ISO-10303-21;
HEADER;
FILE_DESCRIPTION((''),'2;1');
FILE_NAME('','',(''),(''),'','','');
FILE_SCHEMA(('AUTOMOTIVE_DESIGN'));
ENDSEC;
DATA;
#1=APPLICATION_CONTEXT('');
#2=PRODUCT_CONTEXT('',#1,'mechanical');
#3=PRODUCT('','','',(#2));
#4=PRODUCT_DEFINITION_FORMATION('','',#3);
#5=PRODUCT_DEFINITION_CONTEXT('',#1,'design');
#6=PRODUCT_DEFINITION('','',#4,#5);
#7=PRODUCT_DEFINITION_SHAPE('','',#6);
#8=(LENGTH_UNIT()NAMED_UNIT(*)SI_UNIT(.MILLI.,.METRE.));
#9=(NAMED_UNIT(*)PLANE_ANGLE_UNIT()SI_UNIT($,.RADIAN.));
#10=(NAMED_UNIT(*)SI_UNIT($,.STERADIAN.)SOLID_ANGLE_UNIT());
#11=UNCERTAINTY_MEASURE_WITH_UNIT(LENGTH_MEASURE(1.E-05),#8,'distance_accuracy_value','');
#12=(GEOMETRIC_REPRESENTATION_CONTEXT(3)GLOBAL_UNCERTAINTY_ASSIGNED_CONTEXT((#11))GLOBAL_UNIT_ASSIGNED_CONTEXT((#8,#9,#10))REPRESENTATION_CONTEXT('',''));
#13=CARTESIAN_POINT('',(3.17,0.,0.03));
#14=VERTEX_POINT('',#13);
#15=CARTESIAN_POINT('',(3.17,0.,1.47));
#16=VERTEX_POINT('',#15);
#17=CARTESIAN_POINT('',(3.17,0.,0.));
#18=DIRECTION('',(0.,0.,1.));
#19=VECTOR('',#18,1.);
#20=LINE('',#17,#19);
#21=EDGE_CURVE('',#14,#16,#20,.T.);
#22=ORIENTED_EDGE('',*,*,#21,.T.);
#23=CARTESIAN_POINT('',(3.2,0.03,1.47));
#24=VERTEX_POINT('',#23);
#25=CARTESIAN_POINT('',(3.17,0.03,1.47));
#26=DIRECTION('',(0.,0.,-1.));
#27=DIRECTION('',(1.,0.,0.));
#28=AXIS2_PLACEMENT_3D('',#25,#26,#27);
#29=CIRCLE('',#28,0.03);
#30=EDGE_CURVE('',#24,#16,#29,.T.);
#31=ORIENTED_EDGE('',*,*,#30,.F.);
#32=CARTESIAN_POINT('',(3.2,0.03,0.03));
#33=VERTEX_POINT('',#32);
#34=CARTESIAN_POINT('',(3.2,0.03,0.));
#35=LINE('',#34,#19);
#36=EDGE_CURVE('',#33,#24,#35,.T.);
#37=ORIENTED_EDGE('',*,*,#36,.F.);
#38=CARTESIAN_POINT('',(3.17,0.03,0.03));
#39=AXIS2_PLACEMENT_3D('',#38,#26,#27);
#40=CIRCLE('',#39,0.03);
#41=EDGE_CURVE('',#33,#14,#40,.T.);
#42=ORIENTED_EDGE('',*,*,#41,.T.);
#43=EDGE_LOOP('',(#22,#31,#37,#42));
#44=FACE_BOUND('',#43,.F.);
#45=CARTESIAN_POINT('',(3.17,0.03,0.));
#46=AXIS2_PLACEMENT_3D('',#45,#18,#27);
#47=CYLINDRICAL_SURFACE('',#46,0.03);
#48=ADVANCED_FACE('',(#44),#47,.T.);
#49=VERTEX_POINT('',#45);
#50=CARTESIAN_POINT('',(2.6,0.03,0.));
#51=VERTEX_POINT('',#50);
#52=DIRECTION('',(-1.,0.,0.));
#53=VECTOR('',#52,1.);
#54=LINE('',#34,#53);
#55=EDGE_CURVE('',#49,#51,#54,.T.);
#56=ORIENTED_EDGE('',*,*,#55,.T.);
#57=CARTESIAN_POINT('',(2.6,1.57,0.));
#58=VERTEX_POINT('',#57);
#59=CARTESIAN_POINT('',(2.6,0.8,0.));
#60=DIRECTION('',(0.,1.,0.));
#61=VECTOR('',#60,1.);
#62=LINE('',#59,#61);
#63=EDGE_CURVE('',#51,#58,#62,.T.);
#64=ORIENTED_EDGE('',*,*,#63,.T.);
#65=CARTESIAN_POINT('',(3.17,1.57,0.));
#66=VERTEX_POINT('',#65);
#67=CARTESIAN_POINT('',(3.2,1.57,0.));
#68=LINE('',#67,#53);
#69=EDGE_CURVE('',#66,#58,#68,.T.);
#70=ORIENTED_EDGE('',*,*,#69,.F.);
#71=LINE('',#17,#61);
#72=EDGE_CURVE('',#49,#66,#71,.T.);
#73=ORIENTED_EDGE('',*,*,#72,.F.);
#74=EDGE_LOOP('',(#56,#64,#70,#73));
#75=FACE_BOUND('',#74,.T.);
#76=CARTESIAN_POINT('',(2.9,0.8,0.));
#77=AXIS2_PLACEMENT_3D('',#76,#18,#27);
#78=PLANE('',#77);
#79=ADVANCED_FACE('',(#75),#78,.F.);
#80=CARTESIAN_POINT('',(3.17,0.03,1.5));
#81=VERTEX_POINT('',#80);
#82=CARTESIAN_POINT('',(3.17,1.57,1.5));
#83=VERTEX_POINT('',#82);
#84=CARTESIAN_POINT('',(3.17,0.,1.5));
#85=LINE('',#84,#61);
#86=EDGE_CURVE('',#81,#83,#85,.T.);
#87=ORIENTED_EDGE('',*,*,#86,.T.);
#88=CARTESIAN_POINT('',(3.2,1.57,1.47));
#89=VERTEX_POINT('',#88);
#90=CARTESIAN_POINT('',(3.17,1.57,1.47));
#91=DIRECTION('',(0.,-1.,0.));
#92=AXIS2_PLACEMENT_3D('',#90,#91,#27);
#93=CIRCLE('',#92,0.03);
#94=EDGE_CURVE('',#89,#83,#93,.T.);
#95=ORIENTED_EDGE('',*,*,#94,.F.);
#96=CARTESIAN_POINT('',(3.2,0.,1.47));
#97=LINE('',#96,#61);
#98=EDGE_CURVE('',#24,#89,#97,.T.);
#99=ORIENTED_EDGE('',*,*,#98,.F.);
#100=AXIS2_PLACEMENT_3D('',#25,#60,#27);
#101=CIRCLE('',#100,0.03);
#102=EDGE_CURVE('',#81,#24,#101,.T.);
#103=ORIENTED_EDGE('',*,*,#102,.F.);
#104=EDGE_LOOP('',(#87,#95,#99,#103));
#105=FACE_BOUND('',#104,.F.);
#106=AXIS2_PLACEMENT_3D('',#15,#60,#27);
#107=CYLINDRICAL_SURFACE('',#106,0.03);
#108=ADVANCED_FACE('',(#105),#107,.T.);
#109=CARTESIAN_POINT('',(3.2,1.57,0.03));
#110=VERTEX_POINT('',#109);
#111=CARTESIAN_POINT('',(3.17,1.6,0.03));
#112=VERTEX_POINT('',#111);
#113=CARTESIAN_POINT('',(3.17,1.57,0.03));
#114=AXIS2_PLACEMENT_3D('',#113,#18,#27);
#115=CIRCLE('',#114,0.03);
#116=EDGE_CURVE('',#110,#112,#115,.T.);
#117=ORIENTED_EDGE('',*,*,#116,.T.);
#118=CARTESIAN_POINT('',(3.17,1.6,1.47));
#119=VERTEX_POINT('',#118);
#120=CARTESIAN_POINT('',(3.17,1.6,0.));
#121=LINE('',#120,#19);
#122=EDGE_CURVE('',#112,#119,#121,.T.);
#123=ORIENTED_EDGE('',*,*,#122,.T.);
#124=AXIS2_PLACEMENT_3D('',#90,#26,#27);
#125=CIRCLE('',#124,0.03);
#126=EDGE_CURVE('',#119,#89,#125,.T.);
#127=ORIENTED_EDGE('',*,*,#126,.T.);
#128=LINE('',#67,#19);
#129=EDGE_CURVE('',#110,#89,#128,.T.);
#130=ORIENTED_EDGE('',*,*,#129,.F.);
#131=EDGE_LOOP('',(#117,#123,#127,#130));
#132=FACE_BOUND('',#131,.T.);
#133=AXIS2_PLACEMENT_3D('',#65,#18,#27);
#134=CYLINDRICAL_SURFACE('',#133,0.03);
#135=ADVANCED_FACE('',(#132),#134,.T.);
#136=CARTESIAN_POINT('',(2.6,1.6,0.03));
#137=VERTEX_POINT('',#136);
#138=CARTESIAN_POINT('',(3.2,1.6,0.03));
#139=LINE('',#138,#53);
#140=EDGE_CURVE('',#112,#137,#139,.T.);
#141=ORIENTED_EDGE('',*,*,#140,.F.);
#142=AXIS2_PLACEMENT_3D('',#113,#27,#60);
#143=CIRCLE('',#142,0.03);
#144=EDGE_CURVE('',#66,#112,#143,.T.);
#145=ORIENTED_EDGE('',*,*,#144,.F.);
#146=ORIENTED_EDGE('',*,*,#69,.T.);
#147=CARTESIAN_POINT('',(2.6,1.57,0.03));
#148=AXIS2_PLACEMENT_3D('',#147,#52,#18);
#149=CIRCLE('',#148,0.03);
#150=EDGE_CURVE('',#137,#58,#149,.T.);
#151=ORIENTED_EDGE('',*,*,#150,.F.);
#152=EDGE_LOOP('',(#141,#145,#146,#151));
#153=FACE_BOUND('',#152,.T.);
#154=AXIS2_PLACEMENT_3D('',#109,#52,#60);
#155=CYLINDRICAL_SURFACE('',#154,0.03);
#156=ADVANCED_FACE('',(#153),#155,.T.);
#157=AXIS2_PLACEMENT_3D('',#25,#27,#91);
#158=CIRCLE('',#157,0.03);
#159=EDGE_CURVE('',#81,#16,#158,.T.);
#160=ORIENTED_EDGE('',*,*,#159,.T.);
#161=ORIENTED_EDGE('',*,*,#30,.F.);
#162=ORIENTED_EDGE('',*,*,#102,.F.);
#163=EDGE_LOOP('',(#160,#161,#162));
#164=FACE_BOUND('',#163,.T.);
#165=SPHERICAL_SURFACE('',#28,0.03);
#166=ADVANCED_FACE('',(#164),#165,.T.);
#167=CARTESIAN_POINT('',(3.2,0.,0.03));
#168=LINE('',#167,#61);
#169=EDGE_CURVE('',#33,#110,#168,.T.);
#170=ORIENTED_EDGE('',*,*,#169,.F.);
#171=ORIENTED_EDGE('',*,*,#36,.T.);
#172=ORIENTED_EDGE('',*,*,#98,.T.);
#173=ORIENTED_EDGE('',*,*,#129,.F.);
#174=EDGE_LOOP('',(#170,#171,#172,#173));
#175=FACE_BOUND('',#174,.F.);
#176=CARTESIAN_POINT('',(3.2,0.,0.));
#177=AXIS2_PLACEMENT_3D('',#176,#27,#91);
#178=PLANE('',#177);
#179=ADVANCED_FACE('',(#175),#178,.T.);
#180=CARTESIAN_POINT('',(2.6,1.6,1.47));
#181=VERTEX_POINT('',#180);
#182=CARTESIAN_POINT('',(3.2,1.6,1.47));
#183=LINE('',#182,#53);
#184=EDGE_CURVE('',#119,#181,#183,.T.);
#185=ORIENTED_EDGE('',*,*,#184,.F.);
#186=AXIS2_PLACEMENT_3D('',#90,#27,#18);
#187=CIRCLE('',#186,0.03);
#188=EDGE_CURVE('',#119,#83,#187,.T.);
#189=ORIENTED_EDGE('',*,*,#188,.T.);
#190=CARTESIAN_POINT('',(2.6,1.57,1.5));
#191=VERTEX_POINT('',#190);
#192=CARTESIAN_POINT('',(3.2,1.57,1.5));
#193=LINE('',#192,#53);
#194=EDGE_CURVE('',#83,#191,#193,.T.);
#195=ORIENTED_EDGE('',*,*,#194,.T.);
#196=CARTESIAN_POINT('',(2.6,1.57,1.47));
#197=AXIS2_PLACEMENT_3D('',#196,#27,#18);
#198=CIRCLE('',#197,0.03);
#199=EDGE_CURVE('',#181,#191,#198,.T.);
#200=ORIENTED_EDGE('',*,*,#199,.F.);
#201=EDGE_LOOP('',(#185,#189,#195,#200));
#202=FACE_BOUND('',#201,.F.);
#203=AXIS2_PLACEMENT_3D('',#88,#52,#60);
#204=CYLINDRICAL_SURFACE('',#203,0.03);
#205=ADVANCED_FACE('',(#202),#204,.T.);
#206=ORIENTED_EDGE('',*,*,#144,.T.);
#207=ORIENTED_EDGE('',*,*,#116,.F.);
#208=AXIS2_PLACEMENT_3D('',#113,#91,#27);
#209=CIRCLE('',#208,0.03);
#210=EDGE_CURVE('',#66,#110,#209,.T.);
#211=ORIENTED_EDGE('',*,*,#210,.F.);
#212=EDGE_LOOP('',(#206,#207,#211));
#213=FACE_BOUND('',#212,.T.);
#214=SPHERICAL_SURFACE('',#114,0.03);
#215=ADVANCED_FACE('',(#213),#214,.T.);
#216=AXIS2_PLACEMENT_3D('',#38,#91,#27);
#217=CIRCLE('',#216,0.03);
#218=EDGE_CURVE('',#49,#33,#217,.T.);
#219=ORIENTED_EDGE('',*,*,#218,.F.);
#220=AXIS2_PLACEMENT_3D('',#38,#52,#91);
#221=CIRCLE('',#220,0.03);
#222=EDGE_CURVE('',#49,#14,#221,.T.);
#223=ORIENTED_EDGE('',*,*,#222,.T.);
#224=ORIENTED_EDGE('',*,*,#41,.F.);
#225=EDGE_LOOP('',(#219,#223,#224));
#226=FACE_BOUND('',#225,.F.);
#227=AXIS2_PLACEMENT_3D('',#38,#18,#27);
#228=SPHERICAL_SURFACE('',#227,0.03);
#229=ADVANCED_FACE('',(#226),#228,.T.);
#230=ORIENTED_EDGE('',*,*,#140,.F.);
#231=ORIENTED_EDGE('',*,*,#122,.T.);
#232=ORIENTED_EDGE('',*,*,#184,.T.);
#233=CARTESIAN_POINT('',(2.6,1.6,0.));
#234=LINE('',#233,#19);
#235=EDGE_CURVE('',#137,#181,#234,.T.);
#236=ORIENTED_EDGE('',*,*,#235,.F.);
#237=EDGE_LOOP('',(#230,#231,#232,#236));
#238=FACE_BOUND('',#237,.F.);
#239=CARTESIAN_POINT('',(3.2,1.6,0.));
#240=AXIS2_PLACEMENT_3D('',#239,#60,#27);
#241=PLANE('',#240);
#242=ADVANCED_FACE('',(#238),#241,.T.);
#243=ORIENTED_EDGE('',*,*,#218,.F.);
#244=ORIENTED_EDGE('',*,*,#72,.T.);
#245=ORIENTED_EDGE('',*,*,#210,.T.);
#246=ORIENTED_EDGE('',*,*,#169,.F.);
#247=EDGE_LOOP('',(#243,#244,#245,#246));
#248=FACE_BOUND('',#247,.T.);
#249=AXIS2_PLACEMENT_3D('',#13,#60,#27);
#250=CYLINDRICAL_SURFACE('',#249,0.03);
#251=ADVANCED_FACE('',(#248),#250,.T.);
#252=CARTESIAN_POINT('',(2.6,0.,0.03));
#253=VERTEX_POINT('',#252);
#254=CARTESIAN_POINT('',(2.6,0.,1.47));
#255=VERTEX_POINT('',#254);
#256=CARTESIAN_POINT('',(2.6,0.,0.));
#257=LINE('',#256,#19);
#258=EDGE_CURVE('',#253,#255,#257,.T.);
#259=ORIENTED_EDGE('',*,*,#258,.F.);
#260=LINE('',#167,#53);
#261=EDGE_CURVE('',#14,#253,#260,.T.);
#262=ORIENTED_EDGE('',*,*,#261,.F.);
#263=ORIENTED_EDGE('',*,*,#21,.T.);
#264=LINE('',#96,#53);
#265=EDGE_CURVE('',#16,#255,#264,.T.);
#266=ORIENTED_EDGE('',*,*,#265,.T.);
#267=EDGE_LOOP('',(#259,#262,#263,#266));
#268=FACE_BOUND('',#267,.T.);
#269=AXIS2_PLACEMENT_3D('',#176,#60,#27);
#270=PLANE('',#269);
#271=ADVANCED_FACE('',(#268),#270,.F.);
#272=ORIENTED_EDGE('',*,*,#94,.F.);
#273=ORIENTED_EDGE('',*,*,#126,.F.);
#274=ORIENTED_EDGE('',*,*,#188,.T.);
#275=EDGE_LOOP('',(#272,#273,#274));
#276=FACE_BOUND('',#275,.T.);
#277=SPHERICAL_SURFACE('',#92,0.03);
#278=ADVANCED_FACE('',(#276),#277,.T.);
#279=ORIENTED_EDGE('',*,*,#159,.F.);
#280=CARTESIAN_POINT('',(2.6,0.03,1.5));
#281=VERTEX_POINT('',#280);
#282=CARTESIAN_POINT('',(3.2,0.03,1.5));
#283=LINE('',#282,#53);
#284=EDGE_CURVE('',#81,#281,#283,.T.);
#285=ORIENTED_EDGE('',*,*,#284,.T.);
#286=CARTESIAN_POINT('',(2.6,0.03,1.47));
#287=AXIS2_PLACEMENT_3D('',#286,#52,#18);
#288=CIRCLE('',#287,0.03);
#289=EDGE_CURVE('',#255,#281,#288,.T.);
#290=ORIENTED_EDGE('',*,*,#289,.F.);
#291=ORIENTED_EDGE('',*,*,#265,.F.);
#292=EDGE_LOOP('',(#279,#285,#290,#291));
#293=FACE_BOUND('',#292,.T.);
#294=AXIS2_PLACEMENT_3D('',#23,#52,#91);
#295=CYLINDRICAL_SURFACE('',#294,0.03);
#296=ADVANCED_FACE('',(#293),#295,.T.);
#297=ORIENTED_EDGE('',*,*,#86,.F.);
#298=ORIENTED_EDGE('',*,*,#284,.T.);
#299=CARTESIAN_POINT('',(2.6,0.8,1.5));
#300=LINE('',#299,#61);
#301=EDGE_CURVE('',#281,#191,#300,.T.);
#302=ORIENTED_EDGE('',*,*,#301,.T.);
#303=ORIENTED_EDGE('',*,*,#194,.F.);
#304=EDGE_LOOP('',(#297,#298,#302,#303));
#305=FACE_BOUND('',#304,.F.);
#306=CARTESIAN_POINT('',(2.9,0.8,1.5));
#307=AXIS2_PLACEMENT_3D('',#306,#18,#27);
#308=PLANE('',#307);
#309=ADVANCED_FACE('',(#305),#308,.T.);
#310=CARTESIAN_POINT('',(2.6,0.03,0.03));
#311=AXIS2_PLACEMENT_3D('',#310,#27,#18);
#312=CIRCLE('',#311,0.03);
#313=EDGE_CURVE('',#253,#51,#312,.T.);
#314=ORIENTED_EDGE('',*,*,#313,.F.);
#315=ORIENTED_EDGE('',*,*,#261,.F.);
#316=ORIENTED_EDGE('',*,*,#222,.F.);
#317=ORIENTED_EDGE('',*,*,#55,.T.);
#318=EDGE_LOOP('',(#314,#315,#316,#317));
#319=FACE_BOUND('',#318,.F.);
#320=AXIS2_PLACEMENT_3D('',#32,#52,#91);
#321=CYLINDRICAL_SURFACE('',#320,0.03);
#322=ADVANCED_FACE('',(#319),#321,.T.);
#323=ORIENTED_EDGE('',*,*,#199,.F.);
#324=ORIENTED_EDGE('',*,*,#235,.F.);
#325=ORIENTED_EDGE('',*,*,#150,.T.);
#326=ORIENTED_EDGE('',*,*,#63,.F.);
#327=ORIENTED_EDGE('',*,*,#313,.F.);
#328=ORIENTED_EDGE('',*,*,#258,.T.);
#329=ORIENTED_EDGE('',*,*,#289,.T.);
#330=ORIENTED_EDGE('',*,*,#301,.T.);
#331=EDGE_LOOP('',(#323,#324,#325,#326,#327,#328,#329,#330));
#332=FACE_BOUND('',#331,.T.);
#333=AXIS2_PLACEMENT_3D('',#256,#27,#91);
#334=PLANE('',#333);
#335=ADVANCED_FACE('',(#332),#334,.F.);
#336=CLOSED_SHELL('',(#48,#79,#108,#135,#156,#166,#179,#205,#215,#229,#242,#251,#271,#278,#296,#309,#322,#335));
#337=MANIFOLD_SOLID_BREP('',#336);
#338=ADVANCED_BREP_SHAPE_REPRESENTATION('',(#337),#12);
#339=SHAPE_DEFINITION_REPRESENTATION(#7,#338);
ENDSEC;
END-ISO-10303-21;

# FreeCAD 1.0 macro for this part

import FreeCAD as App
import Part
import Sketcher


def edges_at(feature, points):
    """Names of the edges that pass closest to the given points."""
    edges = feature.Shape.Edges
    near = lambda p: min(range(len(edges)), key=lambda i: edges[i].distToShape(Part.Vertex(*p))[0])
    return sorted({f"Edge{near(p) + 1}" for p in points})

doc = App.newDocument("Part")
body = doc.addObject("PartDesign::Body", "Body")

# Sketch on XY plane
sketch1 = doc.addObject("Sketcher::SketchObject", "Sketch")
body.addObject(sketch1)
sketch1.AttachmentSupport = (doc.XY_Plane, [""])
sketch1.MapMode = "FlatFace"
sketch1.addGeometry([
    Part.LineSegment(App.Vector(0, 1.6, 0), App.Vector(0, 0, 0)),
    Part.LineSegment(App.Vector(0, 0, 0), App.Vector(0.6, 0, 0)),
    Part.LineSegment(App.Vector(0.6, 0, 0), App.Vector(0.6, 1.6, 0)),
    Part.LineSegment(App.Vector(0.6, 1.6, 0), App.Vector(0, 1.6, 0)),
], False)
sketch1.addConstraint([
    Sketcher.Constraint("Coincident", 0, 2, 1, 1),
    Sketcher.Constraint("Coincident", 1, 2, 2, 1),
    Sketcher.Constraint("Coincident", 2, 2, 3, 1),
    Sketcher.Constraint("Coincident", 3, 2, 0, 1),
    Sketcher.Constraint("Vertical", 0),
    Sketcher.Constraint("Horizontal", 1),
    Sketcher.Constraint("Vertical", 2),
    Sketcher.Constraint("Horizontal", 3),
    Sketcher.Constraint("Coincident", 0, 2, -1, 1),
    Sketcher.Constraint("DistanceX", 1, 1, 1, 2, 0.6),
    Sketcher.Constraint("DistanceY", 0, 2, 0, 1, 1.6),
])
pad1 = doc.addObject("PartDesign::Pad", "Pad")
body.addObject(pad1)
pad1.Profile = sketch1
pad1.Length = 1.5
doc.recompute()

fillet = doc.addObject("PartDesign::Fillet", "Fillet")
body.addObject(fillet)
fillet.Base = (pad1, edges_at(pad1, [
    (0, 0, 0.75),
    (0, 0.8, 1.5),
    (0, 1.6, 0.75),
    (0, 0.8, 0),
    (0.3, 0, 0),
    (0.3, 0, 1.5),
    (0.3, 1.6, 0),
    (0.3, 1.6, 1.5),
]))
fillet.Radius = 0.03
body2 = doc.addObject("PartDesign::Body", "Body001")
doc.recompute()

mirroring = doc.addObject("Part::Mirroring", "Mirroring")
mirroring.Source = body
mirroring.Base = App.Vector(1.6, 0, 0)
mirroring.Normal = App.Vector(1, 0, 0)
body2.BaseFeature = mirroring
doc.recompute()
body.Visibility = False
mirroring.Visibility = False

doc.recompute()
